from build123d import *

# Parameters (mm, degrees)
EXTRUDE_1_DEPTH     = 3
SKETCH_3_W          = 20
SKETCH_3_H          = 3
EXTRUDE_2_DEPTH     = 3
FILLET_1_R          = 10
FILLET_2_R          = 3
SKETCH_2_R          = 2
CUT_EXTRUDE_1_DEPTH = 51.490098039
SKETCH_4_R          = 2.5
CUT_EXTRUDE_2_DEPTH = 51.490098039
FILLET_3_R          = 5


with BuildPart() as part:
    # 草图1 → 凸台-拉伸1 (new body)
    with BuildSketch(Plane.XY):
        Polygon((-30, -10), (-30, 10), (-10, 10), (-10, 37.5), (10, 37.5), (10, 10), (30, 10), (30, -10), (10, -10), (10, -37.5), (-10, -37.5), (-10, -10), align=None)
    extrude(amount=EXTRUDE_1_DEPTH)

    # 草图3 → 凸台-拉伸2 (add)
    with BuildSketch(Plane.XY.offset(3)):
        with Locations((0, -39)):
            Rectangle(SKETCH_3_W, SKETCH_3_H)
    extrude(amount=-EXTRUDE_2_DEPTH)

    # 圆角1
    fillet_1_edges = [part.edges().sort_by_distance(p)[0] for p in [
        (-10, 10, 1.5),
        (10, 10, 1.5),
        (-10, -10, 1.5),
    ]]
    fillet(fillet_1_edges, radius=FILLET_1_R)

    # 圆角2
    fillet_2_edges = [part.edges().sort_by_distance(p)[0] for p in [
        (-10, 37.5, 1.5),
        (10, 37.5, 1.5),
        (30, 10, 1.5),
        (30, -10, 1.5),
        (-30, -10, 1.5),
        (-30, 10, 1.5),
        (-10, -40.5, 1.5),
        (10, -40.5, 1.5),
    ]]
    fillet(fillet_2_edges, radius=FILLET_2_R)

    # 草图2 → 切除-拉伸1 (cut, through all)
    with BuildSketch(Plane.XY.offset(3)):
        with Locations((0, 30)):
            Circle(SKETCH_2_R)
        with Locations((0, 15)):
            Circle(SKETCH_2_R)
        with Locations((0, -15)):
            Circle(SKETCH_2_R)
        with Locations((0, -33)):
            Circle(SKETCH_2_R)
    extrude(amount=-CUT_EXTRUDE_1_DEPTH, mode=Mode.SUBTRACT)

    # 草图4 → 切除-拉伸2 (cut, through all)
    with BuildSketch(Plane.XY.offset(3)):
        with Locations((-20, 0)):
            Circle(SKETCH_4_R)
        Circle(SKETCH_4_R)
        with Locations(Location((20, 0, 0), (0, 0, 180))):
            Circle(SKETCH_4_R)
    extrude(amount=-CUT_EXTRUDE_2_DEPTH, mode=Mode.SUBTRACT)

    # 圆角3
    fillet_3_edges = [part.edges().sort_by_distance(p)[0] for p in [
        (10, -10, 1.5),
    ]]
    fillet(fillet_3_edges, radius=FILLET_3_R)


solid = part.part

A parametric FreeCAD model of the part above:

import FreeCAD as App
import Part
import Sketcher


def edges_at(feature, points):
    """Names of the edges that pass closest to the given points."""
    edges = feature.Shape.Edges
    near = lambda p: min(range(len(edges)), key=lambda i: edges[i].distToShape(Part.Vertex(*p))[0])
    return sorted({f"Edge{near(p) + 1}" for p in points})

doc = App.newDocument("Part")
body = doc.addObject("PartDesign::Body", "Body")

# Sketch on XY plane
sketch1 = body.newObject("Sketcher::SketchObject", "Sketch")
sketch1.AttachmentSupport = (doc.getObject("XY_Plane"), [""])
sketch1.MapMode = "FlatFace"
sketch1.addGeometry(Part.LineSegment(App.Vector(-30, 10, 0), App.Vector(-30, -10, 0)), False)
sketch1.addGeometry(Part.LineSegment(App.Vector(-30, -10, 0), App.Vector(-10, -10, 0)), False)
sketch1.addGeometry(Part.LineSegment(App.Vector(-10, -10, 0), App.Vector(-10, -37.5, 0)), False)
sketch1.addGeometry(Part.LineSegment(App.Vector(-10, -37.5, 0), App.Vector(10, -37.5, 0)), False)
sketch1.addGeometry(Part.LineSegment(App.Vector(10, -37.5, 0), App.Vector(10, -10, 0)), False)
sketch1.addGeometry(Part.LineSegment(App.Vector(10, -10, 0), App.Vector(30, -10, 0)), False)
sketch1.addGeometry(Part.LineSegment(App.Vector(30, -10, 0), App.Vector(30, 10, 0)), False)
sketch1.addGeometry(Part.LineSegment(App.Vector(30, 10, 0), App.Vector(10, 10, 0)), False)
sketch1.addGeometry(Part.LineSegment(App.Vector(10, 10, 0), App.Vector(10, 37.5, 0)), False)
sketch1.addGeometry(Part.LineSegment(App.Vector(10, 37.5, 0), App.Vector(-10, 37.5, 0)), False)
sketch1.addGeometry(Part.LineSegment(App.Vector(-10, 37.5, 0), App.Vector(-10, 10, 0)), False)
sketch1.addGeometry(Part.LineSegment(App.Vector(-10, 10, 0), App.Vector(-30, 10, 0)), False)
sketch1.addConstraint(Sketcher.Constraint("Coincident", 0, 2, 1, 1))
sketch1.addConstraint(Sketcher.Constraint("Coincident", 1, 2, 2, 1))
sketch1.addConstraint(Sketcher.Constraint("Coincident", 2, 2, 3, 1))
sketch1.addConstraint(Sketcher.Constraint("Coincident", 3, 2, 4, 1))
sketch1.addConstraint(Sketcher.Constraint("Coincident", 4, 2, 5, 1))
sketch1.addConstraint(Sketcher.Constraint("Coincident", 5, 2, 6, 1))
sketch1.addConstraint(Sketcher.Constraint("Coincident", 6, 2, 7, 1))
sketch1.addConstraint(Sketcher.Constraint("Coincident", 7, 2, 8, 1))
sketch1.addConstraint(Sketcher.Constraint("Coincident", 8, 2, 9, 1))
sketch1.addConstraint(Sketcher.Constraint("Coincident", 9, 2, 10, 1))
sketch1.addConstraint(Sketcher.Constraint("Coincident", 10, 2, 11, 1))
sketch1.addConstraint(Sketcher.Constraint("Coincident", 11, 2, 0, 1))
sketch1.addConstraint(Sketcher.Constraint("Vertical", 0))
sketch1.addConstraint(Sketcher.Constraint("Horizontal", 1))
sketch1.addConstraint(Sketcher.Constraint("Vertical", 2))
sketch1.addConstraint(Sketcher.Constraint("Horizontal", 3))
sketch1.addConstraint(Sketcher.Constraint("Vertical", 4))
sketch1.addConstraint(Sketcher.Constraint("Horizontal", 5))
sketch1.addConstraint(Sketcher.Constraint("Vertical", 6))
sketch1.addConstraint(Sketcher.Constraint("Horizontal", 7))
sketch1.addConstraint(Sketcher.Constraint("Vertical", 8))
sketch1.addConstraint(Sketcher.Constraint("Horizontal", 9))
sketch1.addConstraint(Sketcher.Constraint("Vertical", 10))
sketch1.addConstraint(Sketcher.Constraint("Horizontal", 11))
sketch1.addConstraint(Sketcher.Constraint("Symmetric", 0, 2, 6, 2, -1, 1))
sketch1.addConstraint(Sketcher.Constraint("Symmetric", 2, 2, 8, 2, -1, 1))
sketch1.addConstraint(Sketcher.Constraint("Symmetric", 4, 2, 10, 2, -1, 1))
sketch1.addConstraint(Sketcher.Constraint("Symmetric", 1, 2, 4, 2, -2))
sketch1.addConstraint(Sketcher.Constraint("Equal", 1, 3))
sketch1.addConstraint(Sketcher.Constraint("Equal", 11, 0))
sketch1.addConstraint(Sketcher.Constraint("DistanceX", 1, 1, 1, 2, 20.0))
sketch1.addConstraint(Sketcher.Constraint("DistanceY", 2, 2, 2, 1, 27.5))
pad1 = body.newObject("PartDesign::Pad", "Pad")
pad1.Profile = sketch1
pad1.Length = 3

# Sketch on XY plane
sketch2 = body.newObject("Sketcher::SketchObject", "Sketch001")
sketch2.AttachmentSupport = (doc.getObject("XY_Plane"), [""])
sketch2.MapMode = "FlatFace"
sketch2.AttachmentOffset = App.Placement(App.Vector(0, 0, 3), App.Rotation())
sketch2.addGeometry(Part.LineSegment(App.Vector(-10, -37.5, 0), App.Vector(-10, -40.5, 0)), False)
sketch2.addGeometry(Part.LineSegment(App.Vector(-10, -40.5, 0), App.Vector(10, -40.5, 0)), False)
sketch2.addGeometry(Part.LineSegment(App.Vector(10, -40.5, 0), App.Vector(10, -37.5, 0)), False)
sketch2.addGeometry(Part.LineSegment(App.Vector(10, -37.5, 0), App.Vector(-10, -37.5, 0)), False)
sketch2.addConstraint(Sketcher.Constraint("Coincident", 0, 2, 1, 1))
sketch2.addConstraint(Sketcher.Constraint("Coincident", 1, 2, 2, 1))
sketch2.addConstraint(Sketcher.Constraint("Coincident", 2, 2, 3, 1))
sketch2.addConstraint(Sketcher.Constraint("Coincident", 3, 2, 0, 1))
sketch2.addConstraint(Sketcher.Constraint("Vertical", 0))
sketch2.addConstraint(Sketcher.Constraint("Horizontal", 1))
sketch2.addConstraint(Sketcher.Constraint("Vertical", 2))
sketch2.addConstraint(Sketcher.Constraint("Horizontal", 3))
sketch2.addConstraint(Sketcher.Constraint("DistanceX", 1, 1, 1, 2, 20.0))
sketch2.addConstraint(Sketcher.Constraint("DistanceY", 0, 2, 0, 1, 3.0))
sketch2.addConstraint(Sketcher.Constraint("DistanceX", 0, 2, -1, 1, 10.0))
sketch2.addConstraint(Sketcher.Constraint("DistanceY", 0, 2, -1, 1, 40.5))
pad2 = body.newObject("PartDesign::Pad", "Pad001")
pad2.Profile = sketch2
pad2.Length = 3
pad2.Reversed = True
doc.recompute()

fillet = body.newObject("PartDesign::Fillet", "Fillet")
fillet.Base = (pad2, edges_at(pad2, [(-10, 10, 1.5), (10, 10, 1.5), (-10, -10, 1.5)]))
fillet.Radius = 10
doc.recompute()

fillet2 = body.newObject("PartDesign::Fillet", "Fillet001")
fillet2.Base = (fillet, edges_at(fillet, [
    (-10, 37.5, 1.5),
    (10, 37.5, 1.5),
    (30, 10, 1.5),
    (30, -10, 1.5),
    (-30, -10, 1.5),
    (-30, 10, 1.5),
    (-10, -40.5, 1.5),
    (10, -40.5, 1.5),
]))
fillet2.Radius = 3

# Sketch on XY plane
sketch3 = body.newObject("Sketcher::SketchObject", "Sketch002")
sketch3.AttachmentSupport = (doc.getObject("XY_Plane"), [""])
sketch3.MapMode = "FlatFace"
sketch3.AttachmentOffset = App.Placement(App.Vector(0, 0, 3), App.Rotation())
sketch3.addGeometry(Part.Circle(App.Vector(0, 30, 0), App.Vector(0, 0, 1), 2), False)
sketch3.addGeometry(Part.Circle(App.Vector(0, 15, 0), App.Vector(0, 0, 1), 2), False)
sketch3.addGeometry(Part.Circle(App.Vector(0, -15, 0), App.Vector(0, 0, 1), 2), False)
sketch3.addGeometry(Part.Circle(App.Vector(0, -33, 0), App.Vector(0, 0, 1), 2), False)
sketch3.addConstraint(Sketcher.Constraint("Equal", 0, 1))
sketch3.addConstraint(Sketcher.Constraint("Equal", 1, 2))
sketch3.addConstraint(Sketcher.Constraint("Equal", 2, 3))
sketch3.addConstraint(Sketcher.Constraint("Symmetric", 1, 3, 2, 3, -1, 1))
sketch3.addConstraint(Sketcher.Constraint("PointOnObject", 0, 3, -2))
sketch3.addConstraint(Sketcher.Constraint("PointOnObject", 1, 3, -2))
sketch3.addConstraint(Sketcher.Constraint("PointOnObject", 3, 3, -2))
sketch3.addConstraint(Sketcher.Constraint("Diameter", 0, 4.0))
sketch3.addConstraint(Sketcher.Constraint("DistanceY", -1, 1, 0, 3, 30.0))
sketch3.addConstraint(Sketcher.Constraint("DistanceY", -1, 1, 1, 3, 15.0))
sketch3.addConstraint(Sketcher.Constraint("DistanceY", 3, 3, -1, 1, 33.0))
pocket1 = body.newObject("PartDesign::Pocket", "Pocket")
pocket1.Profile = sketch3
pocket1.Type = "ThroughAll"

# Sketch on XY plane
sketch4 = body.newObject("Sketcher::SketchObject", "Sketch003")
sketch4.AttachmentSupport = (doc.getObject("XY_Plane"), [""])
sketch4.MapMode = "FlatFace"
sketch4.AttachmentOffset = App.Placement(App.Vector(0, 0, 3), App.Rotation())
sketch4.addGeometry(Part.Circle(App.Vector(-20, 0, 0), App.Vector(0, 0, 1), 2.5), False)
sketch4.addGeometry(Part.Circle(App.Vector(0, 0, 0), App.Vector(0, 0, 1), 2.5), False)
sketch4.addGeometry(Part.Circle(App.Vector(20, 0, 0), App.Vector(0, 0, 1), 2.5), False)
sketch4.addConstraint(Sketcher.Constraint("Coincident", 1, 3, -1, 1))
sketch4.addConstraint(Sketcher.Constraint("Equal", 0, 1))
sketch4.addConstraint(Sketcher.Constraint("Equal", 1, 2))
sketch4.addConstraint(Sketcher.Constraint("Symmetric", 0, 3, 2, 3, -1, 1))
sketch4.addConstraint(Sketcher.Constraint("PointOnObject", 0, 3, -1))
sketch4.addConstraint(Sketcher.Constraint("Diameter", 0, 5.0))
sketch4.addConstraint(Sketcher.Constraint("DistanceX", 0, 3, -1, 1, 20.0))
pocket2 = body.newObject("PartDesign::Pocket", "Pocket001")
pocket2.Profile = sketch4
pocket2.Type = "ThroughAll"
doc.recompute()

fillet3 = body.newObject("PartDesign::Fillet", "Fillet002")
fillet3.Base = (pocket2, edges_at(pocket2, [(10, -10, 1.5)]))
fillet3.Radius = 5

doc.recompute()
